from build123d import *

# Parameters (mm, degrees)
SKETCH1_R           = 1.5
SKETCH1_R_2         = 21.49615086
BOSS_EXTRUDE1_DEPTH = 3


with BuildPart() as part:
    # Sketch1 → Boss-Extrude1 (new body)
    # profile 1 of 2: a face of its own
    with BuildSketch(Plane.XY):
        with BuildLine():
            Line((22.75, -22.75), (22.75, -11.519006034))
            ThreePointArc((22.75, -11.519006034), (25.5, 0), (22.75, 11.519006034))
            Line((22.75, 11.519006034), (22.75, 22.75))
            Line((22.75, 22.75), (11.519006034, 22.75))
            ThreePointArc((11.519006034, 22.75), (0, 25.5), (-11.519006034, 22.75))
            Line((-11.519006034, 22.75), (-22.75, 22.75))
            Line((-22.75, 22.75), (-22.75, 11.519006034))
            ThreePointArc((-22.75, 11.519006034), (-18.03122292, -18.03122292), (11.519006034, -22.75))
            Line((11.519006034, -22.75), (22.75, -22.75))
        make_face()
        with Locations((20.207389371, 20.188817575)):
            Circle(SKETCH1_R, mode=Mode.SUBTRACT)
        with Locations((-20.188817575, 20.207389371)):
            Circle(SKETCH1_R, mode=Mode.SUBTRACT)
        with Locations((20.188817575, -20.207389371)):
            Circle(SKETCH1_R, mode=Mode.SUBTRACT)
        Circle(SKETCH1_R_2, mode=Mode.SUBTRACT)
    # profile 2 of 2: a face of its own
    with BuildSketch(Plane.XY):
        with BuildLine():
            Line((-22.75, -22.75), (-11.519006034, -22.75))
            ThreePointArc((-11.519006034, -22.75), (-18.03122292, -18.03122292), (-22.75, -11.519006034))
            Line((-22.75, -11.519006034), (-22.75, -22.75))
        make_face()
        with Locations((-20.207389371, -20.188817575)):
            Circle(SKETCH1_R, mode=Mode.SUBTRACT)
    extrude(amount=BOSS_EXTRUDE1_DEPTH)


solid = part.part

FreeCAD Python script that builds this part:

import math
import FreeCAD as App
import Part
import Sketcher
from FreeCAD import Vector

doc = App.newDocument("Part")
body = doc.addObject("PartDesign::Body", "Body")

sketch1 = body.newObject("Sketcher::SketchObject", "Sketch")
sketch1.AttachmentSupport = (doc.getObject("XY_Plane"), [""])
sketch1.MapMode = "FlatFace"
sketch1.addGeometry(Part.LineSegment(Vector(22.75, -22.75, 0), Vector(22.75, -11.519006, 0)), False)
sketch1.addGeometry(Part.ArcOfCircle(Part.Circle(Vector(0, 0, 0), Vector(0, 0, 1), 25.5), math.radians(-26.854459), math.radians(26.854459)), False)
sketch1.addGeometry(Part.LineSegment(Vector(22.75, 11.519006, 0), Vector(22.75, 22.75, 0)), False)
sketch1.addGeometry(Part.LineSegment(Vector(22.75, 22.75, 0), Vector(11.519006, 22.75, 0)), False)
sketch1.addGeometry(Part.ArcOfCircle(Part.Circle(Vector(0, 0, 0), Vector(0, 0, 1), 25.5), math.radians(63.145541), math.radians(116.854459)), False)
sketch1.addGeometry(Part.LineSegment(Vector(-11.519006, 22.75, 0), Vector(-22.75, 22.75, 0)), False)
sketch1.addGeometry(Part.LineSegment(Vector(-22.75, 22.75, 0), Vector(-22.75, 11.519006, 0)), False)
sketch1.addGeometry(Part.ArcOfCircle(Part.Circle(Vector(0, 0, 0), Vector(0, 0, 1), 25.5), math.radians(153.145541), math.radians(206.854459)), False)
sketch1.addGeometry(Part.LineSegment(Vector(-22.75, -11.519006, 0), Vector(-22.75, -22.75, 0)), False)
sketch1.addGeometry(Part.LineSegment(Vector(-22.75, -22.75, 0), Vector(-11.519006, -22.75, 0)), False)
sketch1.addGeometry(Part.ArcOfCircle(Part.Circle(Vector(0, 0, 0), Vector(0, 0, 1), 25.5), math.radians(-116.854459), math.radians(-63.145541)), False)
sketch1.addGeometry(Part.LineSegment(Vector(11.519006, -22.75, 0), Vector(22.75, -22.75, 0)), False)
sketch1.addGeometry(Part.Circle(Vector(0, 0, 0), Vector(0, 0, 1), 21.496151), False)
sketch1.addGeometry(Part.Circle(Vector(20.188818, -20.207389, 0), Vector(0, 0, 1), 1.5), False)
sketch1.addGeometry(Part.Circle(Vector(-20.188818, 20.207389, 0), Vector(0, 0, 1), 1.5), False)
sketch1.addGeometry(Part.Circle(Vector(20.207389, 20.188818, 0), Vector(0, 0, 1), 1.5), False)
sketch1.addGeometry(Part.Circle(Vector(-20.207389, -20.188818, 0), Vector(0, 0, 1), 1.5), False)
sketch1.addConstraint(Sketcher.Constraint("Coincident", 0, 2, 1, 1))
sketch1.addConstraint(Sketcher.Constraint("Coincident", 1, 2, 2, 1))
sketch1.addConstraint(Sketcher.Constraint("Coincident", 2, 2, 3, 1))
sketch1.addConstraint(Sketcher.Constraint("Coincident", 3, 2, 4, 1))
sketch1.addConstraint(Sketcher.Constraint("Coincident", 4, 2, 5, 1))
sketch1.addConstraint(Sketcher.Constraint("Coincident", 5, 2, 6, 1))
sketch1.addConstraint(Sketcher.Constraint("Coincident", 6, 2, 7, 1))
sketch1.addConstraint(Sketcher.Constraint("Coincident", 7, 2, 8, 1))
sketch1.addConstraint(Sketcher.Constraint("Coincident", 8, 2, 9, 1))
sketch1.addConstraint(Sketcher.Constraint("Coincident", 9, 2, 10, 1))
sketch1.addConstraint(Sketcher.Constraint("Coincident", 10, 2, 11, 1))
sketch1.addConstraint(Sketcher.Constraint("Coincident", 11, 2, 0, 1))
sketch1.addConstraint(Sketcher.Constraint("Vertical", 0))
sketch1.addConstraint(Sketcher.Constraint("Vertical", 2))
sketch1.addConstraint(Sketcher.Constraint("Horizontal", 3))
sketch1.addConstraint(Sketcher.Constraint("Horizontal", 5))
sketch1.addConstraint(Sketcher.Constraint("Vertical", 6))
sketch1.addConstraint(Sketcher.Constraint("Vertical", 8))
sketch1.addConstraint(Sketcher.Constraint("Horizontal", 9))
sketch1.addConstraint(Sketcher.Constraint("Horizontal", 11))
sketch1.addConstraint(Sketcher.Constraint("Coincident", 1, 3, -1, 1))
sketch1.addConstraint(Sketcher.Constraint("Coincident", 4, 3, -1, 1))
sketch1.addConstraint(Sketcher.Constraint("Coincident", 7, 3, -1, 1))
sketch1.addConstraint(Sketcher.Constraint("Coincident", 10, 3, -1, 1))
sketch1.addConstraint(Sketcher.Constraint("Coincident", 12, 3, -1, 1))
sketch1.addConstraint(Sketcher.Constraint("Equal", 1, 4))
sketch1.addConstraint(Sketcher.Constraint("Equal", 4, 7))
sketch1.addConstraint(Sketcher.Constraint("Equal", 7, 10))
sketch1.addConstraint(Sketcher.Constraint("Equal", 13, 14))
sketch1.addConstraint(Sketcher.Constraint("Equal", 14, 15))
sketch1.addConstraint(Sketcher.Constraint("Equal", 15, 16))
sketch1.addConstraint(Sketcher.Constraint("Symmetric", 13, 3, 14, 3, -1, 1))
sketch1.addConstraint(Sketcher.Constraint("Symmetric", 15, 3, 16, 3, -1, 1))
sketch1.addConstraint(Sketcher.Constraint("Symmetric", 2, 2, 8, 2, -1, 1))
sketch1.addConstraint(Sketcher.Constraint("Symmetric", 5, 2, 11, 2, -1, 1))
sketch1.addConstraint(Sketcher.Constraint("Symmetric", 2, 2, 5, 2, -2))
sketch1.addConstraint(Sketcher.Constraint("Equal", 11, 0))
sketch1.addConstraint(Sketcher.Constraint("Diameter", 13, 3.0))
sketch1.addConstraint(Sketcher.Constraint("Radius", 1, 25.5))
sketch1.addConstraint(Sketcher.Constraint("Diameter", 12, 42.992302))
sketch1.addConstraint(Sketcher.Constraint("DistanceX", -1, 1, 0, 2, 22.75))
sketch1.addConstraint(Sketcher.Constraint("DistanceY", 13, 3, -1, 1, 20.207389))
sketch1.addConstraint(Sketcher.Constraint("DistanceX", -1, 1, 15, 3, 20.207389))
sketch1.addConstraint(Sketcher.Constraint("DistanceY", 1, 2, 15, 3, 8.669812))
sketch1.addConstraint(Sketcher.Constraint("DistanceX", 14, 3, 4, 2, 8.669812))
pad1 = body.newObject("PartDesign::Pad", "Pad")
pad1.Profile = sketch1
pad1.Length = 3

doc.recompute()
